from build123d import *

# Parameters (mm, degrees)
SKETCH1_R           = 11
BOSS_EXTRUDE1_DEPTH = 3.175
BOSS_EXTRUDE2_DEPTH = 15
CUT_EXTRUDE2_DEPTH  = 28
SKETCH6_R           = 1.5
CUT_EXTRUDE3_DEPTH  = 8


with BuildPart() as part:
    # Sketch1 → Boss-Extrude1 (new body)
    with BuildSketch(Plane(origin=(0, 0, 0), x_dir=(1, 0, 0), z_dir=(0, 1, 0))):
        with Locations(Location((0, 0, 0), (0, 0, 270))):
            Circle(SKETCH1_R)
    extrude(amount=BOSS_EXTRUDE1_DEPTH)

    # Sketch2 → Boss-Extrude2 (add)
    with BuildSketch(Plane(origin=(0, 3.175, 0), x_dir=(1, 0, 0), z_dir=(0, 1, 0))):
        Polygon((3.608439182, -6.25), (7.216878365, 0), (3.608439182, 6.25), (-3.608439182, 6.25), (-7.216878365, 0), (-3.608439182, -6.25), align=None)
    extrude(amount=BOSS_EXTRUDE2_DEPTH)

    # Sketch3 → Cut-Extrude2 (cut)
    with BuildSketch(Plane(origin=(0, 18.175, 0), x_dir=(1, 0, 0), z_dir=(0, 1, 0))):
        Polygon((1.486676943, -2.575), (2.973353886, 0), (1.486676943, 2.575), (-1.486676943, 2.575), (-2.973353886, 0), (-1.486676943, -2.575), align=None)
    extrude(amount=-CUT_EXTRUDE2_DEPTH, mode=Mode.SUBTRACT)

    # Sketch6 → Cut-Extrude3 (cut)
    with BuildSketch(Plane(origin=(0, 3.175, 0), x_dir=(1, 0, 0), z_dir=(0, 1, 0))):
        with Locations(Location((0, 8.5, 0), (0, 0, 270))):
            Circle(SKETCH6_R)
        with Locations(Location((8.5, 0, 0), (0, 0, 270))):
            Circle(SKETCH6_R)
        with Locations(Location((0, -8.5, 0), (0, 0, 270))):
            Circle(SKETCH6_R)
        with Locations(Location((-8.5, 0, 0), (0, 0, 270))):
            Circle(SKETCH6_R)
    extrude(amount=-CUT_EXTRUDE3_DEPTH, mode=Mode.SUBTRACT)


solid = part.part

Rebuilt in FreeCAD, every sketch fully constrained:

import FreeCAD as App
import Part
import Sketcher
Q = App.Units.Quantity


def add_polygon(sketch, points):
    """Adds a closed chain of lines whose ends are joined by coincident constraints."""
    first, n = sketch.GeometryCount, len(points)
    for a, b in zip(points, points[1:] + points[:1]):
        sketch.addGeometry(Part.LineSegment(App.Vector(*a, 0), App.Vector(*b, 0)), False)
    for i in range(n):
        sketch.addConstraint(Sketcher.Constraint("Coincident", first + i, 2, first + (i + 1) % n, 1))

doc = App.newDocument("Part")
body = doc.addObject("PartDesign::Body", "Body")

# Sketch on XZ plane
sketch1 = doc.addObject("Sketcher::SketchObject", "Sketch")
body.addObject(sketch1)
sketch1.AttachmentSupport = (doc.XZ_Plane, [""])
sketch1.MapMode = "FlatFace"
sketch1.addGeometry(Part.Circle(App.Vector(0, 0, 0), App.Vector(0, 0, 1), 11), False)
sketch1.addConstraint([
    Sketcher.Constraint("Coincident", 0, 3, -1, 1),
    Sketcher.Constraint("Diameter", 0, 22.0),
])
pad1 = doc.addObject("PartDesign::Pad", "Pad")
body.addObject(pad1)
pad1.Profile = sketch1
pad1.Length = 3.175
pad1.Reversed = True

# Sketch on XZ plane
sketch2 = doc.addObject("Sketcher::SketchObject", "Sketch001")
body.addObject(sketch2)
sketch2.AttachmentSupport = (doc.XZ_Plane, [""])
sketch2.MapMode = "FlatFace"
sketch2.AttachmentOffset = App.Placement(App.Vector(0, 0, -3.175), App.Rotation())
add_polygon(sketch2, [(4, 6), (7, 0), (4, -6), (-4, -6), (-7, 0), (-4, 6)])  # lines 0-5
sketch2.addConstraint([
    Sketcher.Constraint("Horizontal", 2),
    Sketcher.Constraint("Horizontal", 5),
    Sketcher.Constraint("Symmetric", 0, 2, 3, 2, -1, 1),
    Sketcher.Constraint("Symmetric", 1, 2, 4, 2, -1, 1),
    Sketcher.Constraint("PointOnObject", 0, 2, -1),
    Sketcher.Constraint("Parallel", 0, 3),
    Sketcher.Constraint("Vertical", 2, 2, 4, 2),
    Sketcher.Constraint("Angle", 0, Q("-60 deg")),
    Sketcher.Constraint("DistanceY", 2, 2, 4, 2, 12.5),
    Sketcher.Constraint("DistanceX", 2, 2, 2, 1, 7.216878),
])
pad2 = doc.addObject("PartDesign::Pad", "Pad001")
body.addObject(pad2)
pad2.Profile = sketch2
pad2.Length = 15
pad2.Reversed = True

# Sketch on XZ plane
sketch3 = doc.addObject("Sketcher::SketchObject", "Sketch002")
body.addObject(sketch3)
sketch3.AttachmentSupport = (doc.XZ_Plane, [""])
sketch3.MapMode = "FlatFace"
sketch3.AttachmentOffset = App.Placement(App.Vector(0, 0, -18.175), App.Rotation())
add_polygon(sketch3, [(1.5, 2.6), (3, 0), (1.5, -2.6), (-1.5, -2.6), (-3, 0), (-1.5, 2.6)])  # lines 0-5
sketch3.addConstraint([
    Sketcher.Constraint("Horizontal", 2),
    Sketcher.Constraint("Horizontal", 5),
    Sketcher.Constraint("Symmetric", 0, 2, 3, 2, -1, 1),
    Sketcher.Constraint("Symmetric", 1, 2, 4, 2, -1, 1),
    Sketcher.Constraint("PointOnObject", 0, 2, -1),
    Sketcher.Constraint("Parallel", 0, 3),
    Sketcher.Constraint("Vertical", 2, 2, 4, 2),
    Sketcher.Constraint("Angle", 0, Q("-60 deg")),
    Sketcher.Constraint("DistanceY", 2, 2, 4, 2, 5.15),
    Sketcher.Constraint("DistanceX", 2, 2, 2, 1, 2.973354),
])
pocket1 = doc.addObject("PartDesign::Pocket", "Pocket")
body.addObject(pocket1)
pocket1.Profile = sketch3
pocket1.Length = 28
pocket1.Reversed = True

# Sketch on XZ plane
sketch4 = doc.addObject("Sketcher::SketchObject", "Sketch003")
body.addObject(sketch4)
sketch4.AttachmentSupport = (doc.XZ_Plane, [""])
sketch4.MapMode = "FlatFace"
sketch4.AttachmentOffset = App.Placement(App.Vector(0, 0, -3.175), App.Rotation())
sketch4.addGeometry([
    Part.Circle(App.Vector(0, -8.5, 0), App.Vector(0, 0, 1), 1.5),
    Part.Circle(App.Vector(8.5, 0, 0), App.Vector(0, 0, 1), 1.5),
    Part.Circle(App.Vector(0, 8.5, 0), App.Vector(0, 0, 1), 1.5),
    Part.Circle(App.Vector(-8.5, 0, 0), App.Vector(0, 0, 1), 1.5),
], False)
sketch4.addConstraint([
    Sketcher.Constraint("Equal", 0, 1),
    Sketcher.Constraint("Equal", 1, 2),
    Sketcher.Constraint("Equal", 2, 3),
    Sketcher.Constraint("Symmetric", 0, 3, 2, 3, -1, 1),
    Sketcher.Constraint("Symmetric", 1, 3, 3, 3, -1, 1),
    Sketcher.Constraint("PointOnObject", 0, 3, -2),
    Sketcher.Constraint("PointOnObject", 1, 3, -1),
    Sketcher.Constraint("Diameter", 0, 3.0),
    Sketcher.Constraint("DistanceY", 0, 3, 2, 3, 17.0),
    Sketcher.Constraint("DistanceX", 3, 3, 1, 3, 17.0),
])
pocket2 = doc.addObject("PartDesign::Pocket", "Pocket001")
body.addObject(pocket2)
pocket2.Profile = sketch4
pocket2.Length = 8
pocket2.Reversed = True

doc.recompute()
